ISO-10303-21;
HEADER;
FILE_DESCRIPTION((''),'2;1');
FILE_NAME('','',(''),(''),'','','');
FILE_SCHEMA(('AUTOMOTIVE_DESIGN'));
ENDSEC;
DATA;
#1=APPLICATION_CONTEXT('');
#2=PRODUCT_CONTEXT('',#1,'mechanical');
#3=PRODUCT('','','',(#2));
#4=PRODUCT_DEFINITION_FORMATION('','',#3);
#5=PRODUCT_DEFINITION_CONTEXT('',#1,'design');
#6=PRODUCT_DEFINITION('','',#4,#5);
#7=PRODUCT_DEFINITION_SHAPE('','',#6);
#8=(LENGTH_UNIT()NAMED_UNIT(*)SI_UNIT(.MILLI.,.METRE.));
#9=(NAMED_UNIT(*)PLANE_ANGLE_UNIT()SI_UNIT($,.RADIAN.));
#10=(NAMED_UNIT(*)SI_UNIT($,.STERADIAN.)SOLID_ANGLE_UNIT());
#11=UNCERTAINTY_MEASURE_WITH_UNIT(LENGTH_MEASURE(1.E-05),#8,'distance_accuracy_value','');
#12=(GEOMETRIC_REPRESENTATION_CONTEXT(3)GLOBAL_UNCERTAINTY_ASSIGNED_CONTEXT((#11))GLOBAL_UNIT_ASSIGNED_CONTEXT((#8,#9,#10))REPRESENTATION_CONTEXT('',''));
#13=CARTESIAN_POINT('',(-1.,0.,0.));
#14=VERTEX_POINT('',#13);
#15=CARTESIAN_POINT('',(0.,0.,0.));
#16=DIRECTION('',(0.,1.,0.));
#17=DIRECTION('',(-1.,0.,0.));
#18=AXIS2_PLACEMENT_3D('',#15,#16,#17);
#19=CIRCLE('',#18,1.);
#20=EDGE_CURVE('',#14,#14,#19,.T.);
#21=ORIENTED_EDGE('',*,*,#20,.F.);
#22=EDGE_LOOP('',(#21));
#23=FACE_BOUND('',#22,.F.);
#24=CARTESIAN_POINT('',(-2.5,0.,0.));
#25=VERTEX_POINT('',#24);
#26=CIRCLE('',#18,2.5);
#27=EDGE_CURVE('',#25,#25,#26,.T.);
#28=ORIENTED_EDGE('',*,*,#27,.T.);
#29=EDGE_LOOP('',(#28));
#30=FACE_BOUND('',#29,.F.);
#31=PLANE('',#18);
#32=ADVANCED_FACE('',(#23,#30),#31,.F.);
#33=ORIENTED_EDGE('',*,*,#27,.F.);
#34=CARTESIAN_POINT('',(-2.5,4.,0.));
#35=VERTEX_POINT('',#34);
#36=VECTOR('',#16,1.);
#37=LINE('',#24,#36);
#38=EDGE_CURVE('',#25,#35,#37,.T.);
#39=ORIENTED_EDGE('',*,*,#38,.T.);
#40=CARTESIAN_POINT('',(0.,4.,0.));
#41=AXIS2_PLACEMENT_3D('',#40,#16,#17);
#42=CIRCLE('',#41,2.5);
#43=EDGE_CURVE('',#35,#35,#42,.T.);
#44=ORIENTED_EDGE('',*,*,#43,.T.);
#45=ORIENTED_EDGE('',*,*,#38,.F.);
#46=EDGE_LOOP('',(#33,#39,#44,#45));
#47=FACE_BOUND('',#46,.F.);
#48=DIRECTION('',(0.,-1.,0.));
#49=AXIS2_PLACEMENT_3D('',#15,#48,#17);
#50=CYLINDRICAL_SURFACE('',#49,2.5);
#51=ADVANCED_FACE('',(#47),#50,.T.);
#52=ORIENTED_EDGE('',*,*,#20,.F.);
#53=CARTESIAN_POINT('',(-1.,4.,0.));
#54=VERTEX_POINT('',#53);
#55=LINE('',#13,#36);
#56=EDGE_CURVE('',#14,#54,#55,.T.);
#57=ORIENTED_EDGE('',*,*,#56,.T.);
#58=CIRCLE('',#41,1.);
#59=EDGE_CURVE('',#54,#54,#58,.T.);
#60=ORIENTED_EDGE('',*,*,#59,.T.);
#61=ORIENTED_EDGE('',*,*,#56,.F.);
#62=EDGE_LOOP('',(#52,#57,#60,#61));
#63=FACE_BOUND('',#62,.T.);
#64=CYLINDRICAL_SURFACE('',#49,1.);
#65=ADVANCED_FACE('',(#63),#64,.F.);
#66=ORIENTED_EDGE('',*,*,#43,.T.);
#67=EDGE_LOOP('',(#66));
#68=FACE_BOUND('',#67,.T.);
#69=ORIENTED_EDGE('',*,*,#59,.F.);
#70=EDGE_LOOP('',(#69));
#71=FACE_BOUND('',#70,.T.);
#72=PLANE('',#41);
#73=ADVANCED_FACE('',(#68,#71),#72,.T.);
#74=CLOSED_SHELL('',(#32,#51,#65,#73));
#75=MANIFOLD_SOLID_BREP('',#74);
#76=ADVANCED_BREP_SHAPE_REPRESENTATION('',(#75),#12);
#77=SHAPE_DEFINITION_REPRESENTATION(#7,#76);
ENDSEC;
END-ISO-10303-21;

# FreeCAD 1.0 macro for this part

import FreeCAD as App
import Part
import Sketcher

V = App.Vector

doc = App.newDocument("Part")
body = doc.addObject("PartDesign::Body", "Body")

# Sketch on XZ plane
sketch1 = body.newObject("Sketcher::SketchObject", "Sketch")
sketch1.AttachmentSupport = (doc.getObject("XZ_Plane"), [""])
sketch1.MapMode = "FlatFace"
sketch1.addGeometry(Part.Circle(V(0, 0, 0), V(0, 0, 1), 2.5), False)
sketch1.addGeometry(Part.Circle(V(0, 0, 0), V(0, 0, 1), 1), False)
sketch1.addConstraint(Sketcher.Constraint("Coincident", 0, 3, -1, 1))
sketch1.addConstraint(Sketcher.Constraint("Coincident", 1, 3, -1, 1))
sketch1.addConstraint(Sketcher.Constraint("Diameter", 0, 5.0))
sketch1.addConstraint(Sketcher.Constraint("Diameter", 1, 2.0))
pad1 = body.newObject("PartDesign::Pad", "Pad")
pad1.Profile = sketch1
pad1.Length = 4
pad1.Reversed = True

doc.recompute()
